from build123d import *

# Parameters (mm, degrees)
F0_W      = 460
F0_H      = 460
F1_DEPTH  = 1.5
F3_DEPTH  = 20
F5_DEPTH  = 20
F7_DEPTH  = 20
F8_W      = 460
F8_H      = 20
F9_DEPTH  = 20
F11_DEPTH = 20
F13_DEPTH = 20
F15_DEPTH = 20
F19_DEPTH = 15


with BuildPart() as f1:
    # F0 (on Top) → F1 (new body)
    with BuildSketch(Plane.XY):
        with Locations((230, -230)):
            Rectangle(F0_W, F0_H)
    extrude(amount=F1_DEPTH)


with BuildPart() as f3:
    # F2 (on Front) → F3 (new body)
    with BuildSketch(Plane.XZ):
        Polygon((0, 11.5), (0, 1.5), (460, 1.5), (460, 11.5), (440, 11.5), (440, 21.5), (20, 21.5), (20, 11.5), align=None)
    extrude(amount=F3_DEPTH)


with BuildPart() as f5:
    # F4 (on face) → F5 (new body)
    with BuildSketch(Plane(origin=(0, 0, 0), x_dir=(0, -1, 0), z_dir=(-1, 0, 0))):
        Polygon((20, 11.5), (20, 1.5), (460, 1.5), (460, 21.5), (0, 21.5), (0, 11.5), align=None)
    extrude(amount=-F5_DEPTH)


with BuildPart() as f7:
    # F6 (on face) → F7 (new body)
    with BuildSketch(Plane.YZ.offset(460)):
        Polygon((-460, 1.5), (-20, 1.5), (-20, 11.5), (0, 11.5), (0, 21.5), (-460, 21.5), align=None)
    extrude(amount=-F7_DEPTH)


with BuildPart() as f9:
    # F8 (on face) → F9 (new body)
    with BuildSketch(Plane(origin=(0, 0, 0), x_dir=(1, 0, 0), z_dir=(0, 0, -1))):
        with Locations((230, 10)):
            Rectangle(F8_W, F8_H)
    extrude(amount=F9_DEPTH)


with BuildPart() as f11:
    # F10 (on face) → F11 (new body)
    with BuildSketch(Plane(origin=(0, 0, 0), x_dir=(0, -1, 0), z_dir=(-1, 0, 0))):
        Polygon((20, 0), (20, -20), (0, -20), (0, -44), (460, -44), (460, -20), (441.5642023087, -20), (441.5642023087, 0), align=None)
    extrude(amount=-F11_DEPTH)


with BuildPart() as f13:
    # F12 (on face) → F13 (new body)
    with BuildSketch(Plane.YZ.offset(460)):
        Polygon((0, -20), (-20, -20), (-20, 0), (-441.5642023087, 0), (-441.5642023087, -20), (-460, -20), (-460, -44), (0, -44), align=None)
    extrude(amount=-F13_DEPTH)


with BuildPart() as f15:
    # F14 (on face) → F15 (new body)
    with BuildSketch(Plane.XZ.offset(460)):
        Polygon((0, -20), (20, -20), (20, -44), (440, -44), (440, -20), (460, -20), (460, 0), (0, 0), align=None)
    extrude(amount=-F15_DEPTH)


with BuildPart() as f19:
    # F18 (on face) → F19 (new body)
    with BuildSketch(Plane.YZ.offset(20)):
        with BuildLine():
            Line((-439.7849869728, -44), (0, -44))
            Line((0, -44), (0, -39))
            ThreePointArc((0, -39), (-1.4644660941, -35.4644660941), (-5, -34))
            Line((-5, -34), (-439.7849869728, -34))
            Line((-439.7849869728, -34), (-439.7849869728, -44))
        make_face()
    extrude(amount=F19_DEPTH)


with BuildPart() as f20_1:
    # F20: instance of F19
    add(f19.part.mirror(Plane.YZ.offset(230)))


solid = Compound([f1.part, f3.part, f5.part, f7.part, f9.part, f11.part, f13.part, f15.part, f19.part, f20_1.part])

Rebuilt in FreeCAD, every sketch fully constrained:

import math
import FreeCAD as App
import Part
import Sketcher

V = App.Vector


def add_polygon(sketch, points):
    """Adds a closed chain of lines whose ends are joined by coincident constraints."""
    first, n = sketch.GeometryCount, len(points)
    for a, b in zip(points, points[1:] + points[:1]):
        sketch.addGeometry(Part.LineSegment(App.Vector(*a, 0), App.Vector(*b, 0)), False)
    for i in range(n):
        sketch.addConstraint(Sketcher.Constraint("Coincident", first + i, 2, first + (i + 1) % n, 1))

doc = App.newDocument("Part")
params = doc.addObject("Spreadsheet::Sheet", "Params")
for row, (alias, value) in enumerate([
    ("sketch1_width", "460 mm"),
    ("pad1_length", "1.5 mm"),
    ("sketch2_width", "460 mm"),
    ("sketch2_width2", "20 mm"),
    ("sketch2_height", "10 mm"),
    ("pad2_length", "20 mm"),
    ("sketch3_width", "440 mm"),
    ("sketch3_width2", "460 mm"),
    ("pad3_length", "20 mm"),
    ("sketch4_width", "440 mm"),
    ("sketch4_width2", "20 mm"),
    ("pad4_length", "20 mm"),
    ("sketch5_width", "460 mm"),
    ("sketch5_height", "20 mm"),
    ("pad5_length", "20 mm"),
    ("sketch6_width", "20 mm"),
    ("sketch6_width2", "460 mm"),
    ("sketch6_height", "24 mm"),
    ("pad6_length", "20 mm"),
    ("sketch7_width", "20 mm"),
    ("sketch7_width2", "460 mm"),
    ("sketch7_height", "24 mm"),
    ("pad7_length", "20 mm"),
    ("sketch8_width", "20 mm"),
    ("sketch8_width2", "420 mm"),
    ("sketch8_height", "24 mm"),
    ("pad8_length", "20 mm"),
    ("sketch9_radius", "5 mm"),
    ("sketch9_height", "5 mm"),
    ("pad9_length", "15 mm"),
], start=1):
    params.set(f"A{row}", alias)
    params.set(f"B{row}", "=" + value)
    params.setAlias(f"B{row}", alias)

body = doc.addObject("PartDesign::Body", "Body")

# Sketch on XY plane
sketch1 = body.newObject("Sketcher::SketchObject", "Sketch")
sketch1.AttachmentSupport = (doc.getObject("XY_Plane"), [""])
sketch1.MapMode = "FlatFace"
add_polygon(sketch1, [(0, 0), (0, -460), (460, -460), (460, 0)])  # lines 0-3
sketch1.addConstraint([
    Sketcher.Constraint("Vertical", 0),
    Sketcher.Constraint("Horizontal", 1),
    Sketcher.Constraint("Vertical", 2),
    Sketcher.Constraint("Horizontal", 3),
    Sketcher.Constraint("Coincident", 3, 2, -1, 1),
    Sketcher.Constraint("Equal", 3, 0),
    Sketcher.Constraint("DistanceX", 1, 1, 1, 2, 460.0),
])
sketch1.setExpression("Constraints[10]", "Params.sketch1_width")
pad1 = body.newObject("PartDesign::Pad", "Pad")
pad1.Profile = sketch1
pad1.setExpression("Length", "Params.pad1_length")
body2 = doc.addObject("PartDesign::Body", "Body001")

# Sketch on XZ plane
sketch2 = body2.newObject("Sketcher::SketchObject", "Sketch001")
sketch2.AttachmentSupport = (doc.getObject("XZ_Plane001"), [""])
sketch2.MapMode = "FlatFace"
add_polygon(sketch2, [(0, 12), (0, 2), (460, 2), (460, 12), (440, 12), (440, 22), (20, 22), (20, 12)])  # lines 0-7
sketch2.addConstraint([
    Sketcher.Constraint("Vertical", 0),
    Sketcher.Constraint("Horizontal", 1),
    Sketcher.Constraint("Vertical", 2),
    Sketcher.Constraint("Horizontal", 3),
    Sketcher.Constraint("Vertical", 4),
    Sketcher.Constraint("Horizontal", 5),
    Sketcher.Constraint("Vertical", 6),
    Sketcher.Constraint("Horizontal", 7),
    Sketcher.Constraint("PointOnObject", 0, 2, -2),
    Sketcher.Constraint("Horizontal", 3, 2, 6, 2),
    Sketcher.Constraint("Equal", 3, 7),
    Sketcher.Constraint("Equal", 2, 4),
    Sketcher.Constraint("DistanceX", 1, 1, 1, 2, 460.0),
    Sketcher.Constraint("DistanceX", 3, 2, 3, 1, 20.0),
    Sketcher.Constraint("DistanceY", 0, 2, 0, 1, 10.0),
    Sketcher.Constraint("DistanceY", -1, 1, 0, 2, 1.5),
])
sketch2.setExpression("Constraints[20]", "Params.sketch2_width")
sketch2.setExpression("Constraints[21]", "Params.sketch2_width2")
sketch2.setExpression("Constraints[22]", "Params.sketch2_height")
pad2 = body2.newObject("PartDesign::Pad", "Pad001")
pad2.Profile = sketch2
pad2.setExpression("Length", "Params.pad2_length")
body3 = doc.addObject("PartDesign::Body", "Body002")

# Sketch on YZ plane
sketch3 = body3.newObject("Sketcher::SketchObject", "Sketch002")
sketch3.AttachmentSupport = (doc.getObject("YZ_Plane002"), [""])
sketch3.MapMode = "FlatFace"
add_polygon(sketch3, [(-20, 12), (-20, 2), (-460, 2), (-460, 22), (0, 22), (0, 12)])  # lines 0-5
sketch3.addConstraint([
    Sketcher.Constraint("Vertical", 0),
    Sketcher.Constraint("Horizontal", 1),
    Sketcher.Constraint("Vertical", 2),
    Sketcher.Constraint("Horizontal", 3),
    Sketcher.Constraint("Vertical", 4),
    Sketcher.Constraint("Horizontal", 5),
    Sketcher.Constraint("PointOnObject", 3, 2, -2),
    Sketcher.Constraint("Equal", 5, 2),
    Sketcher.Constraint("Equal", 0, 4),
    Sketcher.Constraint("DistanceX", 1, 2, 1, 1, 440.0),
    Sketcher.Constraint("DistanceX", 3, 1, 3, 2, 460.0),
    Sketcher.Constraint("DistanceY", -1, 1, 0, 2, 1.5),
])
sketch3.setExpression("Constraints[15]", "Params.sketch3_width")
sketch3.setExpression("Constraints[16]", "Params.sketch3_width2")
pad3 = body3.newObject("PartDesign::Pad", "Pad002")
pad3.Profile = sketch3
pad3.setExpression("Length", "Params.pad3_length")
body4 = doc.addObject("PartDesign::Body", "Body003")

# Sketch on YZ plane
sketch4 = body4.newObject("Sketcher::SketchObject", "Sketch003")
sketch4.AttachmentSupport = (doc.getObject("YZ_Plane003"), [""])
sketch4.MapMode = "FlatFace"
sketch4.AttachmentOffset = App.Placement(V(0, 0, 460), App.Rotation())
add_polygon(sketch4, [(-460, 2), (-20, 2), (-20, 12), (0, 12), (0, 22), (-460, 22)])  # lines 0-5
sketch4.addConstraint([
    Sketcher.Constraint("Horizontal", 0),
    Sketcher.Constraint("Vertical", 1),
    Sketcher.Constraint("Horizontal", 2),
    Sketcher.Constraint("Vertical", 3),
    Sketcher.Constraint("Horizontal", 4),
    Sketcher.Constraint("Vertical", 5),
    Sketcher.Constraint("PointOnObject", 2, 2, -2),
    Sketcher.Constraint("Equal", 1, 3),
    Sketcher.Constraint("Equal", 2, 5),
    Sketcher.Constraint("DistanceX", 0, 1, 0, 2, 440.0),
    Sketcher.Constraint("DistanceX", 2, 1, 2, 2, 20.0),
    Sketcher.Constraint("DistanceY", -1, 1, 0, 2, 1.5),
])
sketch4.setExpression("Constraints[15]", "Params.sketch4_width")
sketch4.setExpression("Constraints[16]", "Params.sketch4_width2")
pad4 = body4.newObject("PartDesign::Pad", "Pad003")
pad4.Profile = sketch4
pad4.setExpression("Length", "Params.pad4_length")
pad4.Reversed = True
body5 = doc.addObject("PartDesign::Body", "Body004")

# Sketch on XY plane
sketch5 = body5.newObject("Sketcher::SketchObject", "Sketch004")
sketch5.AttachmentSupport = (doc.getObject("XY_Plane004"), [""])
sketch5.MapMode = "FlatFace"
add_polygon(sketch5, [(0, -20), (0, 0), (460, 0), (460, -20)])  # lines 0-3
sketch5.addConstraint([
    Sketcher.Constraint("Vertical", 0),
    Sketcher.Constraint("Horizontal", 1),
    Sketcher.Constraint("Vertical", 2),
    Sketcher.Constraint("Horizontal", 3),
    Sketcher.Constraint("Coincident", 0, 2, -1, 1),
    Sketcher.Constraint("DistanceX", 1, 1, 1, 2, 460.0),
    Sketcher.Constraint("DistanceY", 0, 1, 0, 2, 20.0),
])
sketch5.setExpression("Constraints[9]", "Params.sketch5_width")
sketch5.setExpression("Constraints[10]", "Params.sketch5_height")
pad5 = body5.newObject("PartDesign::Pad", "Pad004")
pad5.Profile = sketch5
pad5.setExpression("Length", "Params.pad5_length")
pad5.Reversed = True
body6 = doc.addObject("PartDesign::Body", "Body005")

# Sketch on YZ plane
sketch6 = body6.newObject("Sketcher::SketchObject", "Sketch005")
sketch6.AttachmentSupport = (doc.getObject("YZ_Plane005"), [""])
sketch6.MapMode = "FlatFace"
add_polygon(sketch6, [(-20, 0), (-20, -20), (0, -20), (0, -44), (-460, -44), (-460, -20), (-442, -20), (-442, 0)])  # lines 0-7
sketch6.addConstraint([
    Sketcher.Constraint("Vertical", 0),
    Sketcher.Constraint("Horizontal", 1),
    Sketcher.Constraint("Vertical", 2),
    Sketcher.Constraint("Horizontal", 3),
    Sketcher.Constraint("Vertical", 4),
    Sketcher.Constraint("Horizontal", 5),
    Sketcher.Constraint("Vertical", 6),
    Sketcher.Constraint("Horizontal", 7),
    Sketcher.Constraint("PointOnObject", 1, 2, -2),
    Sketcher.Constraint("PointOnObject", 6, 2, -1),
    Sketcher.Constraint("Horizontal", 1, 2, 4, 2),
    Sketcher.Constraint("Equal", 1, 0),
    Sketcher.Constraint("DistanceX", 1, 1, 1, 2, 20.0),
    Sketcher.Constraint("DistanceX", 3, 2, 3, 1, 460.0),
    Sketcher.Constraint("DistanceY", 2, 2, 2, 1, 24.0),
    Sketcher.Constraint("DistanceX", 5, 1, 5, 2, 18.435798),
])
sketch6.setExpression("Constraints[20]", "Params.sketch6_width")
sketch6.setExpression("Constraints[21]", "Params.sketch6_width2")
sketch6.setExpression("Constraints[22]", "Params.sketch6_height")
pad6 = body6.newObject("PartDesign::Pad", "Pad005")
pad6.Profile = sketch6
pad6.setExpression("Length", "Params.pad6_length")
body7 = doc.addObject("PartDesign::Body", "Body006")

# Sketch on YZ plane
sketch7 = body7.newObject("Sketcher::SketchObject", "Sketch006")
sketch7.AttachmentSupport = (doc.getObject("YZ_Plane006"), [""])
sketch7.MapMode = "FlatFace"
sketch7.AttachmentOffset = App.Placement(V(0, 0, 460), App.Rotation())
add_polygon(sketch7, [(0, -20), (-20, -20), (-20, 0), (-442, 0), (-442, -20), (-460, -20), (-460, -44), (0, -44)])  # lines 0-7
sketch7.addConstraint([
    Sketcher.Constraint("Horizontal", 0),
    Sketcher.Constraint("Vertical", 1),
    Sketcher.Constraint("Horizontal", 2),
    Sketcher.Constraint("Vertical", 3),
    Sketcher.Constraint("Horizontal", 4),
    Sketcher.Constraint("Vertical", 5),
    Sketcher.Constraint("Horizontal", 6),
    Sketcher.Constraint("Vertical", 7),
    Sketcher.Constraint("PointOnObject", 1, 2, -1),
    Sketcher.Constraint("PointOnObject", 6, 2, -2),
    Sketcher.Constraint("Horizontal", 0, 2, 3, 2),
    Sketcher.Constraint("Equal", 0, 1),
    Sketcher.Constraint("DistanceX", 0, 2, 0, 1, 20.0),
    Sketcher.Constraint("DistanceX", 6, 1, 6, 2, 460.0),
    Sketcher.Constraint("DistanceY", 5, 2, 5, 1, 24.0),
    Sketcher.Constraint("DistanceX", 2, 2, 2, 1, 421.564202),
])
sketch7.setExpression("Constraints[20]", "Params.sketch7_width")
sketch7.setExpression("Constraints[21]", "Params.sketch7_width2")
sketch7.setExpression("Constraints[22]", "Params.sketch7_height")
pad7 = body7.newObject("PartDesign::Pad", "Pad006")
pad7.Profile = sketch7
pad7.setExpression("Length", "Params.pad7_length")
pad7.Reversed = True
body8 = doc.addObject("PartDesign::Body", "Body007")

# Sketch on XZ plane
sketch8 = body8.newObject("Sketcher::SketchObject", "Sketch007")
sketch8.AttachmentSupport = (doc.getObject("XZ_Plane007"), [""])
sketch8.MapMode = "FlatFace"
sketch8.AttachmentOffset = App.Placement(V(0, 0, 460), App.Rotation())
add_polygon(sketch8, [(0, -20), (20, -20), (20, -44), (440, -44), (440, -20), (460, -20), (460, 0), (0, 0)])  # lines 0-7
sketch8.addConstraint([
    Sketcher.Constraint("Horizontal", 0),
    Sketcher.Constraint("Vertical", 1),
    Sketcher.Constraint("Horizontal", 2),
    Sketcher.Constraint("Vertical", 3),
    Sketcher.Constraint("Horizontal", 4),
    Sketcher.Constraint("Vertical", 5),
    Sketcher.Constraint("Horizontal", 6),
    Sketcher.Constraint("Vertical", 7),
    Sketcher.Constraint("Coincident", 6, 2, -1, 1),
    Sketcher.Constraint("Horizontal", 0, 2, 3, 2),
    Sketcher.Constraint("Equal", 0, 4),
    Sketcher.Constraint("Equal", 4, 5),
    Sketcher.Constraint("DistanceX", 0, 1, 0, 2, 20.0),
    Sketcher.Constraint("DistanceX", 2, 1, 2, 2, 420.0),
    Sketcher.Constraint("DistanceY", 1, 2, 1, 1, 24.0),
])
sketch8.setExpression("Constraints[20]", "Params.sketch8_width")
sketch8.setExpression("Constraints[21]", "Params.sketch8_width2")
sketch8.setExpression("Constraints[22]", "Params.sketch8_height")
pad8 = body8.newObject("PartDesign::Pad", "Pad007")
pad8.Profile = sketch8
pad8.setExpression("Length", "Params.pad8_length")
pad8.Reversed = True
body9 = doc.addObject("PartDesign::Body", "Body008")

# Sketch on YZ plane
sketch9 = body9.newObject("Sketcher::SketchObject", "Sketch008")
sketch9.AttachmentSupport = (doc.getObject("YZ_Plane008"), [""])
sketch9.MapMode = "FlatFace"
sketch9.AttachmentOffset = App.Placement(V(0, 0, 20), App.Rotation())
sketch9.addGeometry([
    Part.LineSegment(V(-440, -44, 0), V(0, -44, 0)),  # 0
    Part.LineSegment(V(0, -44, 0), V(0, -39, 0)),  # 1
    Part.ArcOfCircle(Part.Circle(V(-5, -39, 0), V(0, 0, 1), 5), math.radians(0), math.radians(90)),  # 2
    Part.LineSegment(V(-5, -34, 0), V(-440, -34, 0)),  # 3
    Part.LineSegment(V(-440, -34, 0), V(-440, -44, 0)),  # 4
], False)
sketch9.addConstraint([
    Sketcher.Constraint("Coincident", 0, 2, 1, 1),
    Sketcher.Constraint("Tangent", 1, 2, 2, 1),
    Sketcher.Constraint("Tangent", 2, 2, 3, 1),
    Sketcher.Constraint("Coincident", 3, 2, 4, 1),
    Sketcher.Constraint("Coincident", 4, 2, 0, 1),
    Sketcher.Constraint("Horizontal", 0),
    Sketcher.Constraint("Vertical", 1),
    Sketcher.Constraint("Horizontal", 3),
    Sketcher.Constraint("Vertical", 4),
    Sketcher.Constraint("PointOnObject", 0, 2, -2),
    Sketcher.Constraint("Radius", 2, 5.0),
    Sketcher.Constraint("DistanceY", 1, 1, 1, 2, 5.0),
    Sketcher.Constraint("DistanceY", 2, 3, -1, 1, 39.0),
    Sketcher.Constraint("DistanceX", 0, 1, 0, 2, 439.784987),
])
sketch9.setExpression("Constraints[10]", "Params.sketch9_radius")
sketch9.setExpression("Constraints[11]", "Params.sketch9_height")
pad9 = body9.newObject("PartDesign::Pad", "Pad008")
pad9.Profile = sketch9
pad9.setExpression("Length", "Params.pad9_length")
body10 = doc.addObject("PartDesign::Body", "Body009")
doc.recompute()

mirroring = doc.addObject("Part::Mirroring", "Mirroring")
mirroring.Source = body9
mirroring.Base = V(230, 0, 0)
mirroring.Normal = V(1, 0, 0)
body10.BaseFeature = mirroring
doc.recompute()
mirroring.Visibility = False

doc.recompute()
